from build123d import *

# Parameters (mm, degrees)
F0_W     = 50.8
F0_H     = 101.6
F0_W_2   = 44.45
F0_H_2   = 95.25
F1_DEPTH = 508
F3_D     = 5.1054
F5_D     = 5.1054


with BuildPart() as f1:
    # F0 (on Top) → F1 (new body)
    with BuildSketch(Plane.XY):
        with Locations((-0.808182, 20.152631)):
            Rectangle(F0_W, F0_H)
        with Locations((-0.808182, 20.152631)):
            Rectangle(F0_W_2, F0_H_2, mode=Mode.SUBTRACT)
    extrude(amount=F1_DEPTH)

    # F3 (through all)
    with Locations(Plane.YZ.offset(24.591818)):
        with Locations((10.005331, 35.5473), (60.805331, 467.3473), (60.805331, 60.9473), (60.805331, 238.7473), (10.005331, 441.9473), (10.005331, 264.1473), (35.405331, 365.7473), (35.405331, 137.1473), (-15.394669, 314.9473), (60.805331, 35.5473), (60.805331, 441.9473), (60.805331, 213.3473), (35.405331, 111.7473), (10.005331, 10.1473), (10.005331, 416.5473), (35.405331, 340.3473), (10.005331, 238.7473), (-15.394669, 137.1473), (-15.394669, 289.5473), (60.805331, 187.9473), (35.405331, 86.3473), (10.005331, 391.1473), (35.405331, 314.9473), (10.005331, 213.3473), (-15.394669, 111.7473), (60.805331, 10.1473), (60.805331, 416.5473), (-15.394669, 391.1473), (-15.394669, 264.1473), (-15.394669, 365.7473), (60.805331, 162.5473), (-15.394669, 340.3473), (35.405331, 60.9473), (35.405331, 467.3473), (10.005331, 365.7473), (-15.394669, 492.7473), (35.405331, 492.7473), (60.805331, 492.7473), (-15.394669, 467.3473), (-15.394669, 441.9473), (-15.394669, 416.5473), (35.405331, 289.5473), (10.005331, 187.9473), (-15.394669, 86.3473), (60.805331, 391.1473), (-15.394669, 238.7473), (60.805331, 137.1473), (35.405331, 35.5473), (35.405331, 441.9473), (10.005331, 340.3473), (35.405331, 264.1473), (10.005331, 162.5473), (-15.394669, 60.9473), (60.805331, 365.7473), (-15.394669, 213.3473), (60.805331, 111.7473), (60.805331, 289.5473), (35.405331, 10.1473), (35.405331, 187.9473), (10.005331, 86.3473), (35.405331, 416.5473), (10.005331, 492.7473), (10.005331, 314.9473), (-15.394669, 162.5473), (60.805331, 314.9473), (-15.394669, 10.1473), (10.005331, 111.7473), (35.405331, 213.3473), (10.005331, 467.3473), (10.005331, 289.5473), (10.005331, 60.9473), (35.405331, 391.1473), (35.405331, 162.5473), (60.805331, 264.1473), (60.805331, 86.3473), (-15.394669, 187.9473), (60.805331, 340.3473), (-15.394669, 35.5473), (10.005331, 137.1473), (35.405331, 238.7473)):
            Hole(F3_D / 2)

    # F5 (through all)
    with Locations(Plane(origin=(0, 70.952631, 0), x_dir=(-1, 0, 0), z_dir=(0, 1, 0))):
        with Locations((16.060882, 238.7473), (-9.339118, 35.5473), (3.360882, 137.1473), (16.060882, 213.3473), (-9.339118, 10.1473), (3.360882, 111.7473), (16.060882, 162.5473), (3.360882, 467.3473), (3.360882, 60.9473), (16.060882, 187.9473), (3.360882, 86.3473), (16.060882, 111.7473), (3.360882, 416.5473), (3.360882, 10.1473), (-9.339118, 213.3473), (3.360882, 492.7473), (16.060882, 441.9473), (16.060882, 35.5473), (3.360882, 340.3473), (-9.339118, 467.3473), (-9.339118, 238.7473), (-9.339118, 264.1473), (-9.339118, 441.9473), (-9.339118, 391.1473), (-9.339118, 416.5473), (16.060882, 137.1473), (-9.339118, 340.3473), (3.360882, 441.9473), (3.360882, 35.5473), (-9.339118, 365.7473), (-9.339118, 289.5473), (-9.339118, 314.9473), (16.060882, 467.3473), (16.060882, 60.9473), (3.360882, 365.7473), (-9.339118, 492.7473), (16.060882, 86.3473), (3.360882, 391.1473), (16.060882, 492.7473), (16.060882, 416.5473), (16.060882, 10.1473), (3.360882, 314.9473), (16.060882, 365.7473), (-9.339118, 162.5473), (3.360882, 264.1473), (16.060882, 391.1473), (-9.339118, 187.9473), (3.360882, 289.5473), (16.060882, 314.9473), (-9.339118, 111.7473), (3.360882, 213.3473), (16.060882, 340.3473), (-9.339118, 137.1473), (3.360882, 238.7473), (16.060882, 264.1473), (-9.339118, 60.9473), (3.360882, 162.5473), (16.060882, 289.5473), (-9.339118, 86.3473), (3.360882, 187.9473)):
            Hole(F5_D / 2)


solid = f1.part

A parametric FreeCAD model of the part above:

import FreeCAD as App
import Part
import Sketcher

V = App.Vector
Q = App.Units.Quantity

doc = App.newDocument("Part")
body = doc.addObject("PartDesign::Body", "Body")

sketch1 = doc.addObject("Sketcher::SketchObject", "Sketch")
body.addObject(sketch1)
sketch1.AttachmentSupport = (doc.XY_Plane, [""])
sketch1.MapMode = "FlatFace"
sketch1.addGeometry(Part.LineSegment(V(-26, 71, 0), V(-26, -31, 0)), False)
sketch1.addGeometry(Part.LineSegment(V(-26, -31, 0), V(25, -31, 0)), False)
sketch1.addGeometry(Part.LineSegment(V(25, -31, 0), V(25, 71, 0)), False)
sketch1.addGeometry(Part.LineSegment(V(25, 71, 0), V(-26, 71, 0)), False)
sketch1.addGeometry(Part.LineSegment(V(21, -27, 0), V(-23, -27, 0)), False)
sketch1.addGeometry(Part.LineSegment(V(-23, -27, 0), V(-23, 68, 0)), False)
sketch1.addGeometry(Part.LineSegment(V(-23, 68, 0), V(21, 68, 0)), False)
sketch1.addGeometry(Part.LineSegment(V(21, 68, 0), V(21, -27, 0)), False)
sketch1.addConstraint(Sketcher.Constraint("Coincident", 0, 2, 1, 1))
sketch1.addConstraint(Sketcher.Constraint("Coincident", 1, 2, 2, 1))
sketch1.addConstraint(Sketcher.Constraint("Coincident", 2, 2, 3, 1))
sketch1.addConstraint(Sketcher.Constraint("Coincident", 3, 2, 0, 1))
sketch1.addConstraint(Sketcher.Constraint("Coincident", 4, 2, 5, 1))
sketch1.addConstraint(Sketcher.Constraint("Coincident", 5, 2, 6, 1))
sketch1.addConstraint(Sketcher.Constraint("Coincident", 6, 2, 7, 1))
sketch1.addConstraint(Sketcher.Constraint("Coincident", 7, 2, 4, 1))
sketch1.addConstraint(Sketcher.Constraint("Vertical", 0))
sketch1.addConstraint(Sketcher.Constraint("Horizontal", 1))
sketch1.addConstraint(Sketcher.Constraint("Vertical", 2))
sketch1.addConstraint(Sketcher.Constraint("Horizontal", 3))
sketch1.addConstraint(Sketcher.Constraint("Horizontal", 4))
sketch1.addConstraint(Sketcher.Constraint("Vertical", 5))
sketch1.addConstraint(Sketcher.Constraint("Horizontal", 6))
sketch1.addConstraint(Sketcher.Constraint("Vertical", 7))
sketch1.addConstraint(Sketcher.Constraint("DistanceX", 1, 1, 1, 2, Q("2 in")))
sketch1.addConstraint(Sketcher.Constraint("DistanceY", 0, 2, 0, 1, Q("4 in")))
sketch1.addConstraint(Sketcher.Constraint("DistanceX", 4, 2, 4, 1, Q("1.75 in")))
sketch1.addConstraint(Sketcher.Constraint("DistanceY", 5, 1, 5, 2, Q("3.75 in")))
sketch1.addConstraint(Sketcher.Constraint("DistanceX", 0, 2, 4, 2, Q("0.125 in")))
sketch1.addConstraint(Sketcher.Constraint("DistanceY", 0, 2, 4, 2, Q("0.125 in")))
sketch1.addConstraint(Sketcher.Constraint("DistanceY", 0, 2, -1, 1, Q("30.647369 mm")))
sketch1.addConstraint(Sketcher.Constraint("DistanceX", -1, 1, 1, 2, Q("24.591818 mm")))
pad1 = doc.addObject("PartDesign::Pad", "Pad")
body.addObject(pad1)
pad1.Profile = sketch1
pad1.Length = Q("20 in")

sketch2 = doc.addObject("Sketcher::SketchObject", "Sketch001")
body.addObject(sketch2)
sketch2.AttachmentSupport = (doc.YZ_Plane, [""])
sketch2.MapMode = "FlatFace"
sketch2.AttachmentOffset = App.Placement(V(0, 0, 24.591818), App.Rotation())
sketch2.addGeometry(Part.Circle(V(10, 35.5, 0), V(0, 0, 1), 2.6), False)
sketch2.addGeometry(Part.Circle(V(60.8, 467.3, 0), V(0, 0, 1), 2.6), False)
sketch2.addGeometry(Part.Circle(V(60.8, 60.9, 0), V(0, 0, 1), 2.6), False)
sketch2.addGeometry(Part.Circle(V(60.8, 238.7, 0), V(0, 0, 1), 2.6), False)
sketch2.addGeometry(Part.Circle(V(10, 441.9, 0), V(0, 0, 1), 2.6), False)
sketch2.addGeometry(Part.Circle(V(10, 264.1, 0), V(0, 0, 1), 2.6), False)
sketch2.addGeometry(Part.Circle(V(35.4, 365.7, 0), V(0, 0, 1), 2.6), False)
sketch2.addGeometry(Part.Circle(V(35.4, 137.1, 0), V(0, 0, 1), 2.6), False)
sketch2.addGeometry(Part.Circle(V(-15.4, 314.9, 0), V(0, 0, 1), 2.6), False)
sketch2.addGeometry(Part.Circle(V(60.8, 35.5, 0), V(0, 0, 1), 2.6), False)
sketch2.addGeometry(Part.Circle(V(60.8, 441.9, 0), V(0, 0, 1), 2.6), False)
sketch2.addGeometry(Part.Circle(V(60.8, 213.3, 0), V(0, 0, 1), 2.6), False)
sketch2.addGeometry(Part.Circle(V(35.4, 111.7, 0), V(0, 0, 1), 2.6), False)
sketch2.addGeometry(Part.Circle(V(10, 10.1, 0), V(0, 0, 1), 2.6), False)
sketch2.addGeometry(Part.Circle(V(10, 416.5, 0), V(0, 0, 1), 2.6), False)
sketch2.addGeometry(Part.Circle(V(35.4, 340.3, 0), V(0, 0, 1), 2.6), False)
sketch2.addGeometry(Part.Circle(V(10, 238.7, 0), V(0, 0, 1), 2.6), False)
sketch2.addGeometry(Part.Circle(V(-15.4, 137.1, 0), V(0, 0, 1), 2.6), False)
sketch2.addGeometry(Part.Circle(V(-15.4, 289.5, 0), V(0, 0, 1), 2.6), False)
sketch2.addGeometry(Part.Circle(V(60.8, 187.9, 0), V(0, 0, 1), 2.6), False)
sketch2.addGeometry(Part.Circle(V(35.4, 86.3, 0), V(0, 0, 1), 2.6), False)
sketch2.addGeometry(Part.Circle(V(10, 391.1, 0), V(0, 0, 1), 2.6), False)
sketch2.addGeometry(Part.Circle(V(35.4, 314.9, 0), V(0, 0, 1), 2.6), False)
sketch2.addGeometry(Part.Circle(V(10, 213.3, 0), V(0, 0, 1), 2.6), False)
sketch2.addGeometry(Part.Circle(V(-15.4, 111.7, 0), V(0, 0, 1), 2.6), False)
sketch2.addGeometry(Part.Circle(V(60.8, 10.1, 0), V(0, 0, 1), 2.6), False)
sketch2.addGeometry(Part.Circle(V(60.8, 416.5, 0), V(0, 0, 1), 2.6), False)
sketch2.addGeometry(Part.Circle(V(-15.4, 391.1, 0), V(0, 0, 1), 2.6), False)
sketch2.addGeometry(Part.Circle(V(-15.4, 264.1, 0), V(0, 0, 1), 2.6), False)
sketch2.addGeometry(Part.Circle(V(-15.4, 365.7, 0), V(0, 0, 1), 2.6), False)
sketch2.addGeometry(Part.Circle(V(60.8, 162.5, 0), V(0, 0, 1), 2.6), False)
sketch2.addGeometry(Part.Circle(V(-15.4, 340.3, 0), V(0, 0, 1), 2.6), False)
sketch2.addGeometry(Part.Circle(V(35.4, 60.9, 0), V(0, 0, 1), 2.6), False)
sketch2.addGeometry(Part.Circle(V(35.4, 467.3, 0), V(0, 0, 1), 2.6), False)
sketch2.addGeometry(Part.Circle(V(10, 365.7, 0), V(0, 0, 1), 2.6), False)
sketch2.addGeometry(Part.Circle(V(-15.4, 492.7, 0), V(0, 0, 1), 2.6), False)
sketch2.addGeometry(Part.Circle(V(35.4, 492.7, 0), V(0, 0, 1), 2.6), False)
sketch2.addGeometry(Part.Circle(V(60.8, 492.7, 0), V(0, 0, 1), 2.6), False)
sketch2.addGeometry(Part.Circle(V(-15.4, 467.3, 0), V(0, 0, 1), 2.6), False)
sketch2.addGeometry(Part.Circle(V(-15.4, 441.9, 0), V(0, 0, 1), 2.6), False)
sketch2.addGeometry(Part.Circle(V(-15.4, 416.5, 0), V(0, 0, 1), 2.6), False)
sketch2.addGeometry(Part.Circle(V(35.4, 289.5, 0), V(0, 0, 1), 2.6), False)
sketch2.addGeometry(Part.Circle(V(10, 187.9, 0), V(0, 0, 1), 2.6), False)
sketch2.addGeometry(Part.Circle(V(-15.4, 86.3, 0), V(0, 0, 1), 2.6), False)
sketch2.addGeometry(Part.Circle(V(60.8, 391.1, 0), V(0, 0, 1), 2.6), False)
sketch2.addGeometry(Part.Circle(V(-15.4, 238.7, 0), V(0, 0, 1), 2.6), False)
sketch2.addGeometry(Part.Circle(V(60.8, 137.1, 0), V(0, 0, 1), 2.6), False)
sketch2.addGeometry(Part.Circle(V(35.4, 35.5, 0), V(0, 0, 1), 2.6), False)
sketch2.addGeometry(Part.Circle(V(35.4, 441.9, 0), V(0, 0, 1), 2.6), False)
sketch2.addGeometry(Part.Circle(V(10, 340.3, 0), V(0, 0, 1), 2.6), False)
sketch2.addGeometry(Part.Circle(V(35.4, 264.1, 0), V(0, 0, 1), 2.6), False)
sketch2.addGeometry(Part.Circle(V(10, 162.5, 0), V(0, 0, 1), 2.6), False)
sketch2.addGeometry(Part.Circle(V(-15.4, 60.9, 0), V(0, 0, 1), 2.6), False)
sketch2.addGeometry(Part.Circle(V(60.8, 365.7, 0), V(0, 0, 1), 2.6), False)
sketch2.addGeometry(Part.Circle(V(-15.4, 213.3, 0), V(0, 0, 1), 2.6), False)
sketch2.addGeometry(Part.Circle(V(60.8, 111.7, 0), V(0, 0, 1), 2.6), False)
sketch2.addGeometry(Part.Circle(V(60.8, 289.5, 0), V(0, 0, 1), 2.6), False)
sketch2.addGeometry(Part.Circle(V(35.4, 10.1, 0), V(0, 0, 1), 2.6), False)
sketch2.addGeometry(Part.Circle(V(35.4, 187.9, 0), V(0, 0, 1), 2.6), False)
sketch2.addGeometry(Part.Circle(V(10, 86.3, 0), V(0, 0, 1), 2.6), False)
sketch2.addGeometry(Part.Circle(V(35.4, 416.5, 0), V(0, 0, 1), 2.6), False)
sketch2.addGeometry(Part.Circle(V(10, 492.7, 0), V(0, 0, 1), 2.6), False)
sketch2.addGeometry(Part.Circle(V(10, 314.9, 0), V(0, 0, 1), 2.6), False)
sketch2.addGeometry(Part.Circle(V(-15.4, 162.5, 0), V(0, 0, 1), 2.6), False)
sketch2.addGeometry(Part.Circle(V(60.8, 314.9, 0), V(0, 0, 1), 2.6), False)
sketch2.addGeometry(Part.Circle(V(-15.4, 10.1, 0), V(0, 0, 1), 2.6), False)
sketch2.addGeometry(Part.Circle(V(10, 111.7, 0), V(0, 0, 1), 2.6), False)
sketch2.addGeometry(Part.Circle(V(35.4, 213.3, 0), V(0, 0, 1), 2.6), False)
sketch2.addGeometry(Part.Circle(V(10, 467.3, 0), V(0, 0, 1), 2.6), False)
sketch2.addGeometry(Part.Circle(V(10, 289.5, 0), V(0, 0, 1), 2.6), False)
sketch2.addGeometry(Part.Circle(V(10, 60.9, 0), V(0, 0, 1), 2.6), False)
sketch2.addGeometry(Part.Circle(V(35.4, 391.1, 0), V(0, 0, 1), 2.6), False)
sketch2.addGeometry(Part.Circle(V(35.4, 162.5, 0), V(0, 0, 1), 2.6), False)
sketch2.addGeometry(Part.Circle(V(60.8, 264.1, 0), V(0, 0, 1), 2.6), False)
sketch2.addGeometry(Part.Circle(V(60.8, 86.3, 0), V(0, 0, 1), 2.6), False)
sketch2.addGeometry(Part.Circle(V(-15.4, 187.9, 0), V(0, 0, 1), 2.6), False)
sketch2.addGeometry(Part.Circle(V(60.8, 340.3, 0), V(0, 0, 1), 2.6), False)
sketch2.addGeometry(Part.Circle(V(-15.4, 35.5, 0), V(0, 0, 1), 2.6), False)
sketch2.addGeometry(Part.Circle(V(10, 137.1, 0), V(0, 0, 1), 2.6), False)
sketch2.addGeometry(Part.Circle(V(35.4, 238.7, 0), V(0, 0, 1), 2.6), False)
sketch2.addConstraint(Sketcher.Constraint("Equal", 0, 1))
sketch2.addConstraint(Sketcher.Constraint("Equal", 1, 2))
sketch2.addConstraint(Sketcher.Constraint("Equal", 2, 3))
sketch2.addConstraint(Sketcher.Constraint("Equal", 3, 4))
sketch2.addConstraint(Sketcher.Constraint("Equal", 4, 5))
sketch2.addConstraint(Sketcher.Constraint("Equal", 5, 6))
sketch2.addConstraint(Sketcher.Constraint("Equal", 6, 7))
sketch2.addConstraint(Sketcher.Constraint("Equal", 7, 8))
sketch2.addConstraint(Sketcher.Constraint("Equal", 8, 9))
sketch2.addConstraint(Sketcher.Constraint("Equal", 9, 10))
sketch2.addConstraint(Sketcher.Constraint("Equal", 10, 11))
sketch2.addConstraint(Sketcher.Constraint("Equal", 11, 12))
sketch2.addConstraint(Sketcher.Constraint("Equal", 12, 13))
sketch2.addConstraint(Sketcher.Constraint("Equal", 13, 14))
sketch2.addConstraint(Sketcher.Constraint("Equal", 14, 15))
sketch2.addConstraint(Sketcher.Constraint("Equal", 15, 16))
sketch2.addConstraint(Sketcher.Constraint("Equal", 16, 17))
sketch2.addConstraint(Sketcher.Constraint("Equal", 17, 18))
sketch2.addConstraint(Sketcher.Constraint("Equal", 18, 19))
sketch2.addConstraint(Sketcher.Constraint("Equal", 19, 20))
sketch2.addConstraint(Sketcher.Constraint("Equal", 20, 21))
sketch2.addConstraint(Sketcher.Constraint("Equal", 21, 22))
sketch2.addConstraint(Sketcher.Constraint("Equal", 22, 23))
sketch2.addConstraint(Sketcher.Constraint("Equal", 23, 24))
sketch2.addConstraint(Sketcher.Constraint("Equal", 24, 25))
sketch2.addConstraint(Sketcher.Constraint("Equal", 25, 26))
sketch2.addConstraint(Sketcher.Constraint("Equal", 26, 27))
sketch2.addConstraint(Sketcher.Constraint("Equal", 27, 28))
sketch2.addConstraint(Sketcher.Constraint("Equal", 28, 29))
sketch2.addConstraint(Sketcher.Constraint("Equal", 29, 30))
sketch2.addConstraint(Sketcher.Constraint("Equal", 30, 31))
sketch2.addConstraint(Sketcher.Constraint("Equal", 31, 32))
sketch2.addConstraint(Sketcher.Constraint("Equal", 32, 33))
sketch2.addConstraint(Sketcher.Constraint("Equal", 33, 34))
sketch2.addConstraint(Sketcher.Constraint("Equal", 34, 35))
sketch2.addConstraint(Sketcher.Constraint("Equal", 35, 36))
sketch2.addConstraint(Sketcher.Constraint("Equal", 36, 37))
sketch2.addConstraint(Sketcher.Constraint("Equal", 37, 38))
sketch2.addConstraint(Sketcher.Constraint("Equal", 38, 39))
sketch2.addConstraint(Sketcher.Constraint("Equal", 39, 40))
sketch2.addConstraint(Sketcher.Constraint("Equal", 40, 41))
sketch2.addConstraint(Sketcher.Constraint("Equal", 41, 42))
sketch2.addConstraint(Sketcher.Constraint("Equal", 42, 43))
sketch2.addConstraint(Sketcher.Constraint("Equal", 43, 44))
sketch2.addConstraint(Sketcher.Constraint("Equal", 44, 45))
sketch2.addConstraint(Sketcher.Constraint("Equal", 45, 46))
sketch2.addConstraint(Sketcher.Constraint("Equal", 46, 47))
sketch2.addConstraint(Sketcher.Constraint("Equal", 47, 48))
sketch2.addConstraint(Sketcher.Constraint("Equal", 48, 49))
sketch2.addConstraint(Sketcher.Constraint("Equal", 49, 50))
sketch2.addConstraint(Sketcher.Constraint("Equal", 50, 51))
sketch2.addConstraint(Sketcher.Constraint("Equal", 51, 52))
sketch2.addConstraint(Sketcher.Constraint("Equal", 52, 53))
sketch2.addConstraint(Sketcher.Constraint("Equal", 53, 54))
sketch2.addConstraint(Sketcher.Constraint("Equal", 54, 55))
sketch2.addConstraint(Sketcher.Constraint("Equal", 55, 56))
sketch2.addConstraint(Sketcher.Constraint("Equal", 56, 57))
sketch2.addConstraint(Sketcher.Constraint("Equal", 57, 58))
sketch2.addConstraint(Sketcher.Constraint("Equal", 58, 59))
sketch2.addConstraint(Sketcher.Constraint("Equal", 59, 60))
sketch2.addConstraint(Sketcher.Constraint("Equal", 60, 61))
sketch2.addConstraint(Sketcher.Constraint("Equal", 61, 62))
sketch2.addConstraint(Sketcher.Constraint("Equal", 62, 63))
sketch2.addConstraint(Sketcher.Constraint("Equal", 63, 64))
sketch2.addConstraint(Sketcher.Constraint("Equal", 64, 65))
sketch2.addConstraint(Sketcher.Constraint("Equal", 65, 66))
sketch2.addConstraint(Sketcher.Constraint("Equal", 66, 67))
sketch2.addConstraint(Sketcher.Constraint("Equal", 67, 68))
sketch2.addConstraint(Sketcher.Constraint("Equal", 68, 69))
sketch2.addConstraint(Sketcher.Constraint("Equal", 69, 70))
sketch2.addConstraint(Sketcher.Constraint("Equal", 70, 71))
sketch2.addConstraint(Sketcher.Constraint("Equal", 71, 72))
sketch2.addConstraint(Sketcher.Constraint("Equal", 72, 73))
sketch2.addConstraint(Sketcher.Constraint("Equal", 73, 74))
sketch2.addConstraint(Sketcher.Constraint("Equal", 74, 75))
sketch2.addConstraint(Sketcher.Constraint("Equal", 75, 76))
sketch2.addConstraint(Sketcher.Constraint("Equal", 76, 77))
sketch2.addConstraint(Sketcher.Constraint("Equal", 77, 78))
sketch2.addConstraint(Sketcher.Constraint("Equal", 78, 79))
sketch2.addConstraint(Sketcher.Constraint("Horizontal", 0, 3, 9, 3))
sketch2.addConstraint(Sketcher.Constraint("Horizontal", 4, 3, 10, 3))
sketch2.addConstraint(Sketcher.Constraint("Horizontal", 3, 3, 16, 3))
sketch2.addConstraint(Sketcher.Constraint("Horizontal", 7, 3, 17, 3))
sketch2.addConstraint(Sketcher.Constraint("Horizontal", 8, 3, 22, 3))
sketch2.addConstraint(Sketcher.Constraint("Horizontal", 11, 3, 23, 3))
sketch2.addConstraint(Sketcher.Constraint("Horizontal", 12, 3, 24, 3))
sketch2.addConstraint(Sketcher.Constraint("Horizontal", 13, 3, 25, 3))
sketch2.addConstraint(Sketcher.Constraint("Horizontal", 14, 3, 26, 3))
sketch2.addConstraint(Sketcher.Constraint("Horizontal", 21, 3, 27, 3))
sketch2.addConstraint(Sketcher.Constraint("Horizontal", 5, 3, 28, 3))
sketch2.addConstraint(Sketcher.Constraint("Horizontal", 6, 3, 29, 3))
sketch2.addConstraint(Sketcher.Constraint("Horizontal", 15, 3, 31, 3))
sketch2.addConstraint(Sketcher.Constraint("Horizontal", 2, 3, 32, 3))
sketch2.addConstraint(Sketcher.Constraint("Horizontal", 1, 3, 33, 3))
sketch2.addConstraint(Sketcher.Constraint("Horizontal", 29, 3, 34, 3))
sketch2.addConstraint(Sketcher.Constraint("Horizontal", 35, 3, 36, 3))
sketch2.addConstraint(Sketcher.Constraint("Horizontal", 36, 3, 37, 3))
sketch2.addConstraint(Sketcher.Constraint("Horizontal", 33, 3, 38, 3))
sketch2.addConstraint(Sketcher.Constraint("Horizontal", 10, 3, 39, 3))
sketch2.addConstraint(Sketcher.Constraint("Horizontal", 26, 3, 40, 3))
sketch2.addConstraint(Sketcher.Constraint("Horizontal", 18, 3, 41, 3))
sketch2.addConstraint(Sketcher.Constraint("Horizontal", 19, 3, 42, 3))
sketch2.addConstraint(Sketcher.Constraint("Horizontal", 20, 3, 43, 3))
sketch2.addConstraint(Sketcher.Constraint("Horizontal", 27, 3, 44, 3))
sketch2.addConstraint(Sketcher.Constraint("Horizontal", 16, 3, 45, 3))
sketch2.addConstraint(Sketcher.Constraint("Horizontal", 17, 3, 46, 3))
sketch2.addConstraint(Sketcher.Constraint("Horizontal", 9, 3, 47, 3))
sketch2.addConstraint(Sketcher.Constraint("Horizontal", 39, 3, 48, 3))
sketch2.addConstraint(Sketcher.Constraint("Horizontal", 31, 3, 49, 3))
sketch2.addConstraint(Sketcher.Constraint("Horizontal", 28, 3, 50, 3))
sketch2.addConstraint(Sketcher.Constraint("Horizontal", 30, 3, 51, 3))
sketch2.addConstraint(Sketcher.Constraint("Horizontal", 32, 3, 52, 3))
sketch2.addConstraint(Sketcher.Constraint("Horizontal", 34, 3, 53, 3))
sketch2.addConstraint(Sketcher.Constraint("Horizontal", 23, 3, 54, 3))
sketch2.addConstraint(Sketcher.Constraint("Horizontal", 24, 3, 55, 3))
sketch2.addConstraint(Sketcher.Constraint("Horizontal", 41, 3, 56, 3))
sketch2.addConstraint(Sketcher.Constraint("Horizontal", 25, 3, 57, 3))
sketch2.addConstraint(Sketcher.Constraint("Horizontal", 42, 3, 58, 3))
sketch2.addConstraint(Sketcher.Constraint("Horizontal", 43, 3, 59, 3))
sketch2.addConstraint(Sketcher.Constraint("Horizontal", 40, 3, 60, 3))
sketch2.addConstraint(Sketcher.Constraint("Horizontal", 37, 3, 61, 3))
sketch2.addConstraint(Sketcher.Constraint("Horizontal", 22, 3, 62, 3))
sketch2.addConstraint(Sketcher.Constraint("Horizontal", 51, 3, 63, 3))
sketch2.addConstraint(Sketcher.Constraint("Horizontal", 62, 3, 64, 3))
sketch2.addConstraint(Sketcher.Constraint("Horizontal", 57, 3, 65, 3))
sketch2.addConstraint(Sketcher.Constraint("Horizontal", 55, 3, 66, 3))
sketch2.addConstraint(Sketcher.Constraint("Horizontal", 54, 3, 67, 3))
sketch2.addConstraint(Sketcher.Constraint("Horizontal", 38, 3, 68, 3))
sketch2.addConstraint(Sketcher.Constraint("Horizontal", 56, 3, 69, 3))
sketch2.addConstraint(Sketcher.Constraint("Horizontal", 52, 3, 70, 3))
sketch2.addConstraint(Sketcher.Constraint("Horizontal", 44, 3, 71, 3))
sketch2.addConstraint(Sketcher.Constraint("Horizontal", 63, 3, 72, 3))
sketch2.addConstraint(Sketcher.Constraint("Horizontal", 50, 3, 73, 3))
sketch2.addConstraint(Sketcher.Constraint("Horizontal", 59, 3, 74, 3))
sketch2.addConstraint(Sketcher.Constraint("Horizontal", 58, 3, 75, 3))
sketch2.addConstraint(Sketcher.Constraint("Horizontal", 49, 3, 76, 3))
sketch2.addConstraint(Sketcher.Constraint("Horizontal", 47, 3, 77, 3))
sketch2.addConstraint(Sketcher.Constraint("Horizontal", 46, 3, 78, 3))
sketch2.addConstraint(Sketcher.Constraint("Horizontal", 45, 3, 79, 3))
sketch2.addConstraint(Sketcher.Constraint("Vertical", 1, 3, 2, 3))
sketch2.addConstraint(Sketcher.Constraint("Vertical", 2, 3, 3, 3))
sketch2.addConstraint(Sketcher.Constraint("Vertical", 0, 3, 4, 3))
sketch2.addConstraint(Sketcher.Constraint("Vertical", 4, 3, 5, 3))
sketch2.addConstraint(Sketcher.Constraint("Vertical", 6, 3, 7, 3))
sketch2.addConstraint(Sketcher.Constraint("Vertical", 3, 3, 9, 3))
sketch2.addConstraint(Sketcher.Constraint("Vertical", 9, 3, 10, 3))
sketch2.addConstraint(Sketcher.Constraint("Vertical", 10, 3, 11, 3))
sketch2.addConstraint(Sketcher.Constraint("Vertical", 7, 3, 12, 3))
sketch2.addConstraint(Sketcher.Constraint("Vertical", 5, 3, 13, 3))
sketch2.addConstraint(Sketcher.Constraint("Vertical", 13, 3, 14, 3))
sketch2.addConstraint(Sketcher.Constraint("Vertical", 12, 3, 15, 3))
sketch2.addConstraint(Sketcher.Constraint("Vertical", 14, 3, 16, 3))
sketch2.addConstraint(Sketcher.Constraint("Vertical", 8, 3, 17, 3))
sketch2.addConstraint(Sketcher.Constraint("Vertical", 17, 3, 18, 3))
sketch2.addConstraint(Sketcher.Constraint("Vertical", 11, 3, 19, 3))
sketch2.addConstraint(Sketcher.Constraint("Vertical", 15, 3, 20, 3))
sketch2.addConstraint(Sketcher.Constraint("Vertical", 16, 3, 21, 3))
sketch2.addConstraint(Sketcher.Constraint("Vertical", 20, 3, 22, 3))
sketch2.addConstraint(Sketcher.Constraint("Vertical", 21, 3, 23, 3))
sketch2.addConstraint(Sketcher.Constraint("Vertical", 18, 3, 24, 3))
sketch2.addConstraint(Sketcher.Constraint("Vertical", 19, 3, 25, 3))
sketch2.addConstraint(Sketcher.Constraint("Vertical", 25, 3, 26, 3))
sketch2.addConstraint(Sketcher.Constraint("Vertical", 24, 3, 27, 3))
sketch2.addConstraint(Sketcher.Constraint("Vertical", 27, 3, 28, 3))
sketch2.addConstraint(Sketcher.Constraint("Vertical", 28, 3, 29, 3))
sketch2.addConstraint(Sketcher.Constraint("Vertical", 26, 3, 30, 3))
sketch2.addConstraint(Sketcher.Constraint("Vertical", 29, 3, 31, 3))
sketch2.addConstraint(Sketcher.Constraint("Vertical", 22, 3, 32, 3))
sketch2.addConstraint(Sketcher.Constraint("Vertical", 32, 3, 33, 3))
sketch2.addConstraint(Sketcher.Constraint("Vertical", 23, 3, 34, 3))
sketch2.addConstraint(Sketcher.Constraint("Vertical", 31, 3, 35, 3))
sketch2.addConstraint(Sketcher.Constraint("Vertical", 33, 3, 36, 3))
sketch2.addConstraint(Sketcher.Constraint("Vertical", 30, 3, 37, 3))
sketch2.addConstraint(Sketcher.Constraint("Vertical", 35, 3, 38, 3))
sketch2.addConstraint(Sketcher.Constraint("Vertical", 38, 3, 39, 3))
sketch2.addConstraint(Sketcher.Constraint("Vertical", 39, 3, 40, 3))
sketch2.addConstraint(Sketcher.Constraint("Vertical", 36, 3, 41, 3))
sketch2.addConstraint(Sketcher.Constraint("Vertical", 34, 3, 42, 3))
sketch2.addConstraint(Sketcher.Constraint("Vertical", 40, 3, 43, 3))
sketch2.addConstraint(Sketcher.Constraint("Vertical", 37, 3, 44, 3))
sketch2.addConstraint(Sketcher.Constraint("Vertical", 43, 3, 45, 3))
sketch2.addConstraint(Sketcher.Constraint("Vertical", 44, 3, 46, 3))
sketch2.addConstraint(Sketcher.Constraint("Vertical", 41, 3, 47, 3))
sketch2.addConstraint(Sketcher.Constraint("Vertical", 47, 3, 48, 3))
sketch2.addConstraint(Sketcher.Constraint("Vertical", 42, 3, 49, 3))
sketch2.addConstraint(Sketcher.Constraint("Vertical", 48, 3, 50, 3))
sketch2.addConstraint(Sketcher.Constraint("Vertical", 49, 3, 51, 3))
sketch2.addConstraint(Sketcher.Constraint("Vertical", 45, 3, 52, 3))
sketch2.addConstraint(Sketcher.Constraint("Vertical", 46, 3, 53, 3))
sketch2.addConstraint(Sketcher.Constraint("Vertical", 52, 3, 54, 3))
sketch2.addConstraint(Sketcher.Constraint("Vertical", 53, 3, 55, 3))
sketch2.addConstraint(Sketcher.Constraint("Vertical", 55, 3, 56, 3))
sketch2.addConstraint(Sketcher.Constraint("Vertical", 50, 3, 57, 3))
sketch2.addConstraint(Sketcher.Constraint("Vertical", 57, 3, 58, 3))
sketch2.addConstraint(Sketcher.Constraint("Vertical", 51, 3, 59, 3))
sketch2.addConstraint(Sketcher.Constraint("Vertical", 58, 3, 60, 3))
sketch2.addConstraint(Sketcher.Constraint("Vertical", 59, 3, 61, 3))
sketch2.addConstraint(Sketcher.Constraint("Vertical", 61, 3, 62, 3))
sketch2.addConstraint(Sketcher.Constraint("Vertical", 54, 3, 63, 3))
sketch2.addConstraint(Sketcher.Constraint("Vertical", 56, 3, 64, 3))
sketch2.addConstraint(Sketcher.Constraint("Vertical", 63, 3, 65, 3))
sketch2.addConstraint(Sketcher.Constraint("Vertical", 62, 3, 66, 3))
sketch2.addConstraint(Sketcher.Constraint("Vertical", 60, 3, 67, 3))
sketch2.addConstraint(Sketcher.Constraint("Vertical", 66, 3, 68, 3))
sketch2.addConstraint(Sketcher.Constraint("Vertical", 68, 3, 69, 3))
sketch2.addConstraint(Sketcher.Constraint("Vertical", 69, 3, 70, 3))
sketch2.addConstraint(Sketcher.Constraint("Vertical", 67, 3, 71, 3))
sketch2.addConstraint(Sketcher.Constraint("Vertical", 71, 3, 72, 3))
sketch2.addConstraint(Sketcher.Constraint("Vertical", 64, 3, 73, 3))
sketch2.addConstraint(Sketcher.Constraint("Vertical", 73, 3, 74, 3))
sketch2.addConstraint(Sketcher.Constraint("Vertical", 65, 3, 75, 3))
sketch2.addConstraint(Sketcher.Constraint("Vertical", 74, 3, 76, 3))
sketch2.addConstraint(Sketcher.Constraint("Vertical", 75, 3, 77, 3))
sketch2.addConstraint(Sketcher.Constraint("Vertical", 70, 3, 78, 3))
sketch2.addConstraint(Sketcher.Constraint("Vertical", 72, 3, 79, 3))
sketch2.addConstraint(Sketcher.Constraint("Diameter", 0, Q("0.201 in")))
sketch2.addConstraint(Sketcher.Constraint("DistanceY", -1, 1, 0, 3, Q("1.3995 in")))
sketch2.addConstraint(Sketcher.Constraint("DistanceY", -1, 1, 1, 3, Q("18.3995 in")))
sketch2.addConstraint(Sketcher.Constraint("DistanceY", -1, 1, 2, 3, Q("2.3995 in")))
sketch2.addConstraint(Sketcher.Constraint("DistanceY", -1, 1, 3, 3, Q("9.3995 in")))
sketch2.addConstraint(Sketcher.Constraint("DistanceY", -1, 1, 4, 3, Q("17.3995 in")))
sketch2.addConstraint(Sketcher.Constraint("DistanceY", -1, 1, 5, 3, Q("10.3995 in")))
sketch2.addConstraint(Sketcher.Constraint("DistanceY", -1, 1, 6, 3, Q("14.3995 in")))
sketch2.addConstraint(Sketcher.Constraint("DistanceY", -1, 1, 7, 3, Q("5.3995 in")))
sketch2.addConstraint(Sketcher.Constraint("DistanceY", -1, 1, 8, 3, Q("12.3995 in")))
sketch2.addConstraint(Sketcher.Constraint("DistanceY", -1, 1, 11, 3, Q("8.3995 in")))
sketch2.addConstraint(Sketcher.Constraint("DistanceY", -1, 1, 12, 3, Q("4.3995 in")))
sketch2.addConstraint(Sketcher.Constraint("DistanceY", -1, 1, 13, 3, Q("0.3995 in")))
sketch2.addConstraint(Sketcher.Constraint("DistanceY", -1, 1, 14, 3, Q("16.3995 in")))
sketch2.addConstraint(Sketcher.Constraint("DistanceY", -1, 1, 15, 3, Q("13.3995 in")))
sketch2.addConstraint(Sketcher.Constraint("DistanceY", -1, 1, 18, 3, Q("11.3995 in")))
sketch2.addConstraint(Sketcher.Constraint("DistanceY", -1, 1, 19, 3, Q("7.3995 in")))
sketch2.addConstraint(Sketcher.Constraint("DistanceY", -1, 1, 20, 3, Q("3.3995 in")))
sketch2.addConstraint(Sketcher.Constraint("DistanceY", -1, 1, 21, 3, Q("15.3995 in")))
sketch2.addConstraint(Sketcher.Constraint("DistanceY", -1, 1, 30, 3, Q("6.3995 in")))
sketch2.addConstraint(Sketcher.Constraint("DistanceY", -1, 1, 35, 3, Q("19.3995 in")))
sketch2.addConstraint(Sketcher.Constraint("DistanceX", -1, 1, 0, 3, Q("10.005331 mm")))
sketch2.addConstraint(Sketcher.Constraint("DistanceX", -1, 1, 1, 3, Q("60.805331 mm")))
sketch2.addConstraint(Sketcher.Constraint("DistanceX", -1, 1, 6, 3, Q("35.405331 mm")))
sketch2.addConstraint(Sketcher.Constraint("DistanceX", 8, 3, -1, 1, Q("15.394669 mm")))
doc.recompute()
hole = doc.addObject("PartDesign::Hole", "Hole")
body.addObject(hole)
hole.Profile = sketch2
hole.ThreadType = "None"
hole.Diameter = Q("0.201 in")
hole.DepthType = "ThroughAll"

sketch3 = doc.addObject("Sketcher::SketchObject", "Sketch002")
body.addObject(sketch3)
sketch3.AttachmentSupport = (doc.XZ_Plane, [""])
sketch3.MapMode = "FlatFace"
sketch3.AttachmentOffset = App.Placement(V(0, 0, -70.952631), App.Rotation())
sketch3.addGeometry(Part.Circle(V(-16.1, 238.7, 0), V(0, 0, 1), 2.6), False)
sketch3.addGeometry(Part.Circle(V(9.3, 35.5, 0), V(0, 0, 1), 2.6), False)
sketch3.addGeometry(Part.Circle(V(-3.4, 137.1, 0), V(0, 0, 1), 2.6), False)
sketch3.addGeometry(Part.Circle(V(-16.1, 213.3, 0), V(0, 0, 1), 2.6), False)
sketch3.addGeometry(Part.Circle(V(9.3, 10.1, 0), V(0, 0, 1), 2.6), False)
sketch3.addGeometry(Part.Circle(V(-3.4, 111.7, 0), V(0, 0, 1), 2.6), False)
sketch3.addGeometry(Part.Circle(V(-16.1, 162.5, 0), V(0, 0, 1), 2.6), False)
sketch3.addGeometry(Part.Circle(V(-3.4, 467.3, 0), V(0, 0, 1), 2.6), False)
sketch3.addGeometry(Part.Circle(V(-3.4, 60.9, 0), V(0, 0, 1), 2.6), False)
sketch3.addGeometry(Part.Circle(V(-16.1, 187.9, 0), V(0, 0, 1), 2.6), False)
sketch3.addGeometry(Part.Circle(V(-3.4, 86.3, 0), V(0, 0, 1), 2.6), False)
sketch3.addGeometry(Part.Circle(V(-16.1, 111.7, 0), V(0, 0, 1), 2.6), False)
sketch3.addGeometry(Part.Circle(V(-3.4, 416.5, 0), V(0, 0, 1), 2.6), False)
sketch3.addGeometry(Part.Circle(V(-3.4, 10.1, 0), V(0, 0, 1), 2.6), False)
sketch3.addGeometry(Part.Circle(V(9.3, 213.3, 0), V(0, 0, 1), 2.6), False)
sketch3.addGeometry(Part.Circle(V(-3.4, 492.7, 0), V(0, 0, 1), 2.6), False)
sketch3.addGeometry(Part.Circle(V(-16.1, 441.9, 0), V(0, 0, 1), 2.6), False)
sketch3.addGeometry(Part.Circle(V(-16.1, 35.5, 0), V(0, 0, 1), 2.6), False)
sketch3.addGeometry(Part.Circle(V(-3.4, 340.3, 0), V(0, 0, 1), 2.6), False)
sketch3.addGeometry(Part.Circle(V(9.3, 467.3, 0), V(0, 0, 1), 2.6), False)
sketch3.addGeometry(Part.Circle(V(9.3, 238.7, 0), V(0, 0, 1), 2.6), False)
sketch3.addGeometry(Part.Circle(V(9.3, 264.1, 0), V(0, 0, 1), 2.6), False)
sketch3.addGeometry(Part.Circle(V(9.3, 441.9, 0), V(0, 0, 1), 2.6), False)
sketch3.addGeometry(Part.Circle(V(9.3, 391.1, 0), V(0, 0, 1), 2.6), False)
sketch3.addGeometry(Part.Circle(V(9.3, 416.5, 0), V(0, 0, 1), 2.6), False)
sketch3.addGeometry(Part.Circle(V(-16.1, 137.1, 0), V(0, 0, 1), 2.6), False)
sketch3.addGeometry(Part.Circle(V(9.3, 340.3, 0), V(0, 0, 1), 2.6), False)
sketch3.addGeometry(Part.Circle(V(-3.4, 441.9, 0), V(0, 0, 1), 2.6), False)
sketch3.addGeometry(Part.Circle(V(-3.4, 35.5, 0), V(0, 0, 1), 2.6), False)
sketch3.addGeometry(Part.Circle(V(9.3, 365.7, 0), V(0, 0, 1), 2.6), False)
sketch3.addGeometry(Part.Circle(V(9.3, 289.5, 0), V(0, 0, 1), 2.6), False)
sketch3.addGeometry(Part.Circle(V(9.3, 314.9, 0), V(0, 0, 1), 2.6), False)
sketch3.addGeometry(Part.Circle(V(-16.1, 467.3, 0), V(0, 0, 1), 2.6), False)
sketch3.addGeometry(Part.Circle(V(-16.1, 60.9, 0), V(0, 0, 1), 2.6), False)
sketch3.addGeometry(Part.Circle(V(-3.4, 365.7, 0), V(0, 0, 1), 2.6), False)
sketch3.addGeometry(Part.Circle(V(9.3, 492.7, 0), V(0, 0, 1), 2.6), False)
sketch3.addGeometry(Part.Circle(V(-16.1, 86.3, 0), V(0, 0, 1), 2.6), False)
sketch3.addGeometry(Part.Circle(V(-3.4, 391.1, 0), V(0, 0, 1), 2.6), False)
sketch3.addGeometry(Part.Circle(V(-16.1, 492.7, 0), V(0, 0, 1), 2.6), False)
sketch3.addGeometry(Part.Circle(V(-16.1, 416.5, 0), V(0, 0, 1), 2.6), False)
sketch3.addGeometry(Part.Circle(V(-16.1, 10.1, 0), V(0, 0, 1), 2.6), False)
sketch3.addGeometry(Part.Circle(V(-3.4, 314.9, 0), V(0, 0, 1), 2.6), False)
sketch3.addGeometry(Part.Circle(V(-16.1, 365.7, 0), V(0, 0, 1), 2.6), False)
sketch3.addGeometry(Part.Circle(V(9.3, 162.5, 0), V(0, 0, 1), 2.6), False)
sketch3.addGeometry(Part.Circle(V(-3.4, 264.1, 0), V(0, 0, 1), 2.6), False)
sketch3.addGeometry(Part.Circle(V(-16.1, 391.1, 0), V(0, 0, 1), 2.6), False)
sketch3.addGeometry(Part.Circle(V(9.3, 187.9, 0), V(0, 0, 1), 2.6), False)
sketch3.addGeometry(Part.Circle(V(-3.4, 289.5, 0), V(0, 0, 1), 2.6), False)
sketch3.addGeometry(Part.Circle(V(-16.1, 314.9, 0), V(0, 0, 1), 2.6), False)
sketch3.addGeometry(Part.Circle(V(9.3, 111.7, 0), V(0, 0, 1), 2.6), False)
sketch3.addGeometry(Part.Circle(V(-3.4, 213.3, 0), V(0, 0, 1), 2.6), False)
sketch3.addGeometry(Part.Circle(V(-16.1, 340.3, 0), V(0, 0, 1), 2.6), False)
sketch3.addGeometry(Part.Circle(V(9.3, 137.1, 0), V(0, 0, 1), 2.6), False)
sketch3.addGeometry(Part.Circle(V(-3.4, 238.7, 0), V(0, 0, 1), 2.6), False)
sketch3.addGeometry(Part.Circle(V(-16.1, 264.1, 0), V(0, 0, 1), 2.6), False)
sketch3.addGeometry(Part.Circle(V(9.3, 60.9, 0), V(0, 0, 1), 2.6), False)
sketch3.addGeometry(Part.Circle(V(-3.4, 162.5, 0), V(0, 0, 1), 2.6), False)
sketch3.addGeometry(Part.Circle(V(-16.1, 289.5, 0), V(0, 0, 1), 2.6), False)
sketch3.addGeometry(Part.Circle(V(9.3, 86.3, 0), V(0, 0, 1), 2.6), False)
sketch3.addGeometry(Part.Circle(V(-3.4, 187.9, 0), V(0, 0, 1), 2.6), False)
sketch3.addConstraint(Sketcher.Constraint("Equal", 0, 1))
sketch3.addConstraint(Sketcher.Constraint("Equal", 1, 2))
sketch3.addConstraint(Sketcher.Constraint("Equal", 2, 3))
sketch3.addConstraint(Sketcher.Constraint("Equal", 3, 4))
sketch3.addConstraint(Sketcher.Constraint("Equal", 4, 5))
sketch3.addConstraint(Sketcher.Constraint("Equal", 5, 6))
sketch3.addConstraint(Sketcher.Constraint("Equal", 6, 7))
sketch3.addConstraint(Sketcher.Constraint("Equal", 7, 8))
sketch3.addConstraint(Sketcher.Constraint("Equal", 8, 9))
sketch3.addConstraint(Sketcher.Constraint("Equal", 9, 10))
sketch3.addConstraint(Sketcher.Constraint("Equal", 10, 11))
sketch3.addConstraint(Sketcher.Constraint("Equal", 11, 12))
sketch3.addConstraint(Sketcher.Constraint("Equal", 12, 13))
sketch3.addConstraint(Sketcher.Constraint("Equal", 13, 14))
sketch3.addConstraint(Sketcher.Constraint("Equal", 14, 15))
sketch3.addConstraint(Sketcher.Constraint("Equal", 15, 16))
sketch3.addConstraint(Sketcher.Constraint("Equal", 16, 17))
sketch3.addConstraint(Sketcher.Constraint("Equal", 17, 18))
sketch3.addConstraint(Sketcher.Constraint("Equal", 18, 19))
sketch3.addConstraint(Sketcher.Constraint("Equal", 19, 20))
sketch3.addConstraint(Sketcher.Constraint("Equal", 20, 21))
sketch3.addConstraint(Sketcher.Constraint("Equal", 21, 22))
sketch3.addConstraint(Sketcher.Constraint("Equal", 22, 23))
sketch3.addConstraint(Sketcher.Constraint("Equal", 23, 24))
sketch3.addConstraint(Sketcher.Constraint("Equal", 24, 25))
sketch3.addConstraint(Sketcher.Constraint("Equal", 25, 26))
sketch3.addConstraint(Sketcher.Constraint("Equal", 26, 27))
sketch3.addConstraint(Sketcher.Constraint("Equal", 27, 28))
sketch3.addConstraint(Sketcher.Constraint("Equal", 28, 29))
sketch3.addConstraint(Sketcher.Constraint("Equal", 29, 30))
sketch3.addConstraint(Sketcher.Constraint("Equal", 30, 31))
sketch3.addConstraint(Sketcher.Constraint("Equal", 31, 32))
sketch3.addConstraint(Sketcher.Constraint("Equal", 32, 33))
sketch3.addConstraint(Sketcher.Constraint("Equal", 33, 34))
sketch3.addConstraint(Sketcher.Constraint("Equal", 34, 35))
sketch3.addConstraint(Sketcher.Constraint("Equal", 35, 36))
sketch3.addConstraint(Sketcher.Constraint("Equal", 36, 37))
sketch3.addConstraint(Sketcher.Constraint("Equal", 37, 38))
sketch3.addConstraint(Sketcher.Constraint("Equal", 38, 39))
sketch3.addConstraint(Sketcher.Constraint("Equal", 39, 40))
sketch3.addConstraint(Sketcher.Constraint("Equal", 40, 41))
sketch3.addConstraint(Sketcher.Constraint("Equal", 41, 42))
sketch3.addConstraint(Sketcher.Constraint("Equal", 42, 43))
sketch3.addConstraint(Sketcher.Constraint("Equal", 43, 44))
sketch3.addConstraint(Sketcher.Constraint("Equal", 44, 45))
sketch3.addConstraint(Sketcher.Constraint("Equal", 45, 46))
sketch3.addConstraint(Sketcher.Constraint("Equal", 46, 47))
sketch3.addConstraint(Sketcher.Constraint("Equal", 47, 48))
sketch3.addConstraint(Sketcher.Constraint("Equal", 48, 49))
sketch3.addConstraint(Sketcher.Constraint("Equal", 49, 50))
sketch3.addConstraint(Sketcher.Constraint("Equal", 50, 51))
sketch3.addConstraint(Sketcher.Constraint("Equal", 51, 52))
sketch3.addConstraint(Sketcher.Constraint("Equal", 52, 53))
sketch3.addConstraint(Sketcher.Constraint("Equal", 53, 54))
sketch3.addConstraint(Sketcher.Constraint("Equal", 54, 55))
sketch3.addConstraint(Sketcher.Constraint("Equal", 55, 56))
sketch3.addConstraint(Sketcher.Constraint("Equal", 56, 57))
sketch3.addConstraint(Sketcher.Constraint("Equal", 57, 58))
sketch3.addConstraint(Sketcher.Constraint("Equal", 58, 59))
sketch3.addConstraint(Sketcher.Constraint("Horizontal", 5, 3, 11, 3))
sketch3.addConstraint(Sketcher.Constraint("Horizontal", 4, 3, 13, 3))
sketch3.addConstraint(Sketcher.Constraint("Horizontal", 3, 3, 14, 3))
sketch3.addConstraint(Sketcher.Constraint("Horizontal", 1, 3, 17, 3))
sketch3.addConstraint(Sketcher.Constraint("Horizontal", 7, 3, 19, 3))
sketch3.addConstraint(Sketcher.Constraint("Horizontal", 0, 3, 20, 3))
sketch3.addConstraint(Sketcher.Constraint("Horizontal", 16, 3, 22, 3))
sketch3.addConstraint(Sketcher.Constraint("Horizontal", 12, 3, 24, 3))
sketch3.addConstraint(Sketcher.Constraint("Horizontal", 2, 3, 25, 3))
sketch3.addConstraint(Sketcher.Constraint("Horizontal", 18, 3, 26, 3))
sketch3.addConstraint(Sketcher.Constraint("Horizontal", 22, 3, 27, 3))
sketch3.addConstraint(Sketcher.Constraint("Horizontal", 17, 3, 28, 3))
sketch3.addConstraint(Sketcher.Constraint("Horizontal", 19, 3, 32, 3))
sketch3.addConstraint(Sketcher.Constraint("Horizontal", 8, 3, 33, 3))
sketch3.addConstraint(Sketcher.Constraint("Horizontal", 29, 3, 34, 3))
sketch3.addConstraint(Sketcher.Constraint("Horizontal", 15, 3, 35, 3))
sketch3.addConstraint(Sketcher.Constraint("Horizontal", 10, 3, 36, 3))
sketch3.addConstraint(Sketcher.Constraint("Horizontal", 23, 3, 37, 3))
sketch3.addConstraint(Sketcher.Constraint("Horizontal", 35, 3, 38, 3))
sketch3.addConstraint(Sketcher.Constraint("Horizontal", 24, 3, 39, 3))
sketch3.addConstraint(Sketcher.Constraint("Horizontal", 13, 3, 40, 3))
sketch3.addConstraint(Sketcher.Constraint("Horizontal", 31, 3, 41, 3))
sketch3.addConstraint(Sketcher.Constraint("Horizontal", 34, 3, 42, 3))
sketch3.addConstraint(Sketcher.Constraint("Horizontal", 6, 3, 43, 3))
sketch3.addConstraint(Sketcher.Constraint("Horizontal", 21, 3, 44, 3))
sketch3.addConstraint(Sketcher.Constraint("Horizontal", 37, 3, 45, 3))
sketch3.addConstraint(Sketcher.Constraint("Horizontal", 9, 3, 46, 3))
sketch3.addConstraint(Sketcher.Constraint("Horizontal", 30, 3, 47, 3))
sketch3.addConstraint(Sketcher.Constraint("Horizontal", 41, 3, 48, 3))
sketch3.addConstraint(Sketcher.Constraint("Horizontal", 11, 3, 49, 3))
sketch3.addConstraint(Sketcher.Constraint("Horizontal", 14, 3, 50, 3))
sketch3.addConstraint(Sketcher.Constraint("Horizontal", 26, 3, 51, 3))
sketch3.addConstraint(Sketcher.Constraint("Horizontal", 25, 3, 52, 3))
sketch3.addConstraint(Sketcher.Constraint("Horizontal", 20, 3, 53, 3))
sketch3.addConstraint(Sketcher.Constraint("Horizontal", 44, 3, 54, 3))
sketch3.addConstraint(Sketcher.Constraint("Horizontal", 33, 3, 55, 3))
sketch3.addConstraint(Sketcher.Constraint("Horizontal", 43, 3, 56, 3))
sketch3.addConstraint(Sketcher.Constraint("Horizontal", 47, 3, 57, 3))
sketch3.addConstraint(Sketcher.Constraint("Horizontal", 36, 3, 58, 3))
sketch3.addConstraint(Sketcher.Constraint("Horizontal", 46, 3, 59, 3))
sketch3.addConstraint(Sketcher.Constraint("Vertical", 0, 3, 3, 3))
sketch3.addConstraint(Sketcher.Constraint("Vertical", 1, 3, 4, 3))
sketch3.addConstraint(Sketcher.Constraint("Vertical", 2, 3, 5, 3))
sketch3.addConstraint(Sketcher.Constraint("Vertical", 3, 3, 6, 3))
sketch3.addConstraint(Sketcher.Constraint("Vertical", 5, 3, 7, 3))
sketch3.addConstraint(Sketcher.Constraint("Vertical", 7, 3, 8, 3))
sketch3.addConstraint(Sketcher.Constraint("Vertical", 6, 3, 9, 3))
sketch3.addConstraint(Sketcher.Constraint("Vertical", 8, 3, 10, 3))
sketch3.addConstraint(Sketcher.Constraint("Vertical", 9, 3, 11, 3))
sketch3.addConstraint(Sketcher.Constraint("Vertical", 10, 3, 12, 3))
sketch3.addConstraint(Sketcher.Constraint("Vertical", 12, 3, 13, 3))
sketch3.addConstraint(Sketcher.Constraint("Vertical", 4, 3, 14, 3))
sketch3.addConstraint(Sketcher.Constraint("Vertical", 13, 3, 15, 3))
sketch3.addConstraint(Sketcher.Constraint("Vertical", 11, 3, 16, 3))
sketch3.addConstraint(Sketcher.Constraint("Vertical", 16, 3, 17, 3))
sketch3.addConstraint(Sketcher.Constraint("Vertical", 15, 3, 18, 3))
sketch3.addConstraint(Sketcher.Constraint("Vertical", 14, 3, 19, 3))
sketch3.addConstraint(Sketcher.Constraint("Vertical", 19, 3, 20, 3))
sketch3.addConstraint(Sketcher.Constraint("Vertical", 20, 3, 21, 3))
sketch3.addConstraint(Sketcher.Constraint("Vertical", 21, 3, 22, 3))
sketch3.addConstraint(Sketcher.Constraint("Vertical", 22, 3, 23, 3))
sketch3.addConstraint(Sketcher.Constraint("Vertical", 23, 3, 24, 3))
sketch3.addConstraint(Sketcher.Constraint("Vertical", 17, 3, 25, 3))
sketch3.addConstraint(Sketcher.Constraint("Vertical", 24, 3, 26, 3))
sketch3.addConstraint(Sketcher.Constraint("Vertical", 18, 3, 27, 3))
sketch3.addConstraint(Sketcher.Constraint("Vertical", 27, 3, 28, 3))
sketch3.addConstraint(Sketcher.Constraint("Vertical", 26, 3, 29, 3))
sketch3.addConstraint(Sketcher.Constraint("Vertical", 29, 3, 30, 3))
sketch3.addConstraint(Sketcher.Constraint("Vertical", 30, 3, 31, 3))
sketch3.addConstraint(Sketcher.Constraint("Vertical", 25, 3, 32, 3))
sketch3.addConstraint(Sketcher.Constraint("Vertical", 32, 3, 33, 3))
sketch3.addConstraint(Sketcher.Constraint("Vertical", 28, 3, 34, 3))
sketch3.addConstraint(Sketcher.Constraint("Vertical", 31, 3, 35, 3))
sketch3.addConstraint(Sketcher.Constraint("Vertical", 33, 3, 36, 3))
sketch3.addConstraint(Sketcher.Constraint("Vertical", 34, 3, 37, 3))
sketch3.addConstraint(Sketcher.Constraint("Vertical", 36, 3, 38, 3))
sketch3.addConstraint(Sketcher.Constraint("Vertical", 38, 3, 39, 3))
sketch3.addConstraint(Sketcher.Constraint("Vertical", 39, 3, 40, 3))
sketch3.addConstraint(Sketcher.Constraint("Vertical", 37, 3, 41, 3))
sketch3.addConstraint(Sketcher.Constraint("Vertical", 40, 3, 42, 3))
sketch3.addConstraint(Sketcher.Constraint("Vertical", 35, 3, 43, 3))
sketch3.addConstraint(Sketcher.Constraint("Vertical", 41, 3, 44, 3))
sketch3.addConstraint(Sketcher.Constraint("Vertical", 42, 3, 45, 3))
sketch3.addConstraint(Sketcher.Constraint("Vertical", 43, 3, 46, 3))
sketch3.addConstraint(Sketcher.Constraint("Vertical", 44, 3, 47, 3))
sketch3.addConstraint(Sketcher.Constraint("Vertical", 45, 3, 48, 3))
sketch3.addConstraint(Sketcher.Constraint("Vertical", 46, 3, 49, 3))
sketch3.addConstraint(Sketcher.Constraint("Vertical", 47, 3, 50, 3))
sketch3.addConstraint(Sketcher.Constraint("Vertical", 48, 3, 51, 3))
sketch3.addConstraint(Sketcher.Constraint("Vertical", 49, 3, 52, 3))
sketch3.addConstraint(Sketcher.Constraint("Vertical", 50, 3, 53, 3))
sketch3.addConstraint(Sketcher.Constraint("Vertical", 51, 3, 54, 3))
sketch3.addConstraint(Sketcher.Constraint("Vertical", 52, 3, 55, 3))
sketch3.addConstraint(Sketcher.Constraint("Vertical", 53, 3, 56, 3))
sketch3.addConstraint(Sketcher.Constraint("Vertical", 54, 3, 57, 3))
sketch3.addConstraint(Sketcher.Constraint("Vertical", 55, 3, 58, 3))
sketch3.addConstraint(Sketcher.Constraint("Vertical", 56, 3, 59, 3))
sketch3.addConstraint(Sketcher.Constraint("Diameter", 0, Q("0.201 in")))
sketch3.addConstraint(Sketcher.Constraint("DistanceX", 0, 3, 1, 3, Q("1 in")))
sketch3.addConstraint(Sketcher.Constraint("DistanceY", 1, 3, 0, 3, Q("8 in")))
sketch3.addConstraint(Sketcher.Constraint("DistanceY", 2, 3, 0, 3, Q("4 in")))
sketch3.addConstraint(Sketcher.Constraint("DistanceY", 3, 3, 0, 3, Q("1 in")))
sketch3.addConstraint(Sketcher.Constraint("DistanceY", 4, 3, 1, 3, Q("1 in")))
sketch3.addConstraint(Sketcher.Constraint("DistanceY", 5, 3, 2, 3, Q("1 in")))
sketch3.addConstraint(Sketcher.Constraint("DistanceY", 2, 3, 6, 3, Q("1 in")))
sketch3.addConstraint(Sketcher.Constraint("DistanceY", 0, 3, 7, 3, Q("9 in")))
sketch3.addConstraint(Sketcher.Constraint("DistanceY", 1, 3, 8, 3, Q("1 in")))
sketch3.addConstraint(Sketcher.Constraint("DistanceY", 9, 3, 3, 3, Q("1 in")))
sketch3.addConstraint(Sketcher.Constraint("DistanceY", 10, 3, 5, 3, Q("1 in")))
sketch3.addConstraint(Sketcher.Constraint("DistanceY", 12, 3, 7, 3, Q("2 in")))
sketch3.addConstraint(Sketcher.Constraint("DistanceY", 7, 3, 15, 3, Q("1 in")))
sketch3.addConstraint(Sketcher.Constraint("DistanceY", 12, 3, 16, 3, Q("1 in")))
sketch3.addConstraint(Sketcher.Constraint("DistanceY", 18, 3, 12, 3, Q("3 in")))
sketch3.addConstraint(Sketcher.Constraint("DistanceY", 20, 3, 21, 3, Q("1 in")))
sketch3.addConstraint(Sketcher.Constraint("DistanceY", 23, 3, 12, 3, Q("1 in")))
sketch3.addConstraint(Sketcher.Constraint("DistanceY", 29, 3, 23, 3, Q("1 in")))
sketch3.addConstraint(Sketcher.Constraint("DistanceY", 21, 3, 30, 3, Q("1 in")))
sketch3.addConstraint(Sketcher.Constraint("DistanceY", 30, 3, 31, 3, Q("1 in")))
sketch3.addConstraint(Sketcher.Constraint("DistanceX", 0, 3, 2, 3, Q("0.5 in")))
sketch3.addConstraint(Sketcher.Constraint("DistanceY", -1, 1, 0, 3, Q("9.3995 in")))
sketch3.addConstraint(Sketcher.Constraint("DistanceX", 0, 3, -1, 1, Q("16.060882 mm")))
doc.recompute()
hole2 = doc.addObject("PartDesign::Hole", "Hole001")
body.addObject(hole2)
hole2.Profile = sketch3
hole2.ThreadType = "None"
hole2.Diameter = Q("0.201 in")
hole2.DepthType = "ThroughAll"
hole2.Reversed = True

doc.recompute()
